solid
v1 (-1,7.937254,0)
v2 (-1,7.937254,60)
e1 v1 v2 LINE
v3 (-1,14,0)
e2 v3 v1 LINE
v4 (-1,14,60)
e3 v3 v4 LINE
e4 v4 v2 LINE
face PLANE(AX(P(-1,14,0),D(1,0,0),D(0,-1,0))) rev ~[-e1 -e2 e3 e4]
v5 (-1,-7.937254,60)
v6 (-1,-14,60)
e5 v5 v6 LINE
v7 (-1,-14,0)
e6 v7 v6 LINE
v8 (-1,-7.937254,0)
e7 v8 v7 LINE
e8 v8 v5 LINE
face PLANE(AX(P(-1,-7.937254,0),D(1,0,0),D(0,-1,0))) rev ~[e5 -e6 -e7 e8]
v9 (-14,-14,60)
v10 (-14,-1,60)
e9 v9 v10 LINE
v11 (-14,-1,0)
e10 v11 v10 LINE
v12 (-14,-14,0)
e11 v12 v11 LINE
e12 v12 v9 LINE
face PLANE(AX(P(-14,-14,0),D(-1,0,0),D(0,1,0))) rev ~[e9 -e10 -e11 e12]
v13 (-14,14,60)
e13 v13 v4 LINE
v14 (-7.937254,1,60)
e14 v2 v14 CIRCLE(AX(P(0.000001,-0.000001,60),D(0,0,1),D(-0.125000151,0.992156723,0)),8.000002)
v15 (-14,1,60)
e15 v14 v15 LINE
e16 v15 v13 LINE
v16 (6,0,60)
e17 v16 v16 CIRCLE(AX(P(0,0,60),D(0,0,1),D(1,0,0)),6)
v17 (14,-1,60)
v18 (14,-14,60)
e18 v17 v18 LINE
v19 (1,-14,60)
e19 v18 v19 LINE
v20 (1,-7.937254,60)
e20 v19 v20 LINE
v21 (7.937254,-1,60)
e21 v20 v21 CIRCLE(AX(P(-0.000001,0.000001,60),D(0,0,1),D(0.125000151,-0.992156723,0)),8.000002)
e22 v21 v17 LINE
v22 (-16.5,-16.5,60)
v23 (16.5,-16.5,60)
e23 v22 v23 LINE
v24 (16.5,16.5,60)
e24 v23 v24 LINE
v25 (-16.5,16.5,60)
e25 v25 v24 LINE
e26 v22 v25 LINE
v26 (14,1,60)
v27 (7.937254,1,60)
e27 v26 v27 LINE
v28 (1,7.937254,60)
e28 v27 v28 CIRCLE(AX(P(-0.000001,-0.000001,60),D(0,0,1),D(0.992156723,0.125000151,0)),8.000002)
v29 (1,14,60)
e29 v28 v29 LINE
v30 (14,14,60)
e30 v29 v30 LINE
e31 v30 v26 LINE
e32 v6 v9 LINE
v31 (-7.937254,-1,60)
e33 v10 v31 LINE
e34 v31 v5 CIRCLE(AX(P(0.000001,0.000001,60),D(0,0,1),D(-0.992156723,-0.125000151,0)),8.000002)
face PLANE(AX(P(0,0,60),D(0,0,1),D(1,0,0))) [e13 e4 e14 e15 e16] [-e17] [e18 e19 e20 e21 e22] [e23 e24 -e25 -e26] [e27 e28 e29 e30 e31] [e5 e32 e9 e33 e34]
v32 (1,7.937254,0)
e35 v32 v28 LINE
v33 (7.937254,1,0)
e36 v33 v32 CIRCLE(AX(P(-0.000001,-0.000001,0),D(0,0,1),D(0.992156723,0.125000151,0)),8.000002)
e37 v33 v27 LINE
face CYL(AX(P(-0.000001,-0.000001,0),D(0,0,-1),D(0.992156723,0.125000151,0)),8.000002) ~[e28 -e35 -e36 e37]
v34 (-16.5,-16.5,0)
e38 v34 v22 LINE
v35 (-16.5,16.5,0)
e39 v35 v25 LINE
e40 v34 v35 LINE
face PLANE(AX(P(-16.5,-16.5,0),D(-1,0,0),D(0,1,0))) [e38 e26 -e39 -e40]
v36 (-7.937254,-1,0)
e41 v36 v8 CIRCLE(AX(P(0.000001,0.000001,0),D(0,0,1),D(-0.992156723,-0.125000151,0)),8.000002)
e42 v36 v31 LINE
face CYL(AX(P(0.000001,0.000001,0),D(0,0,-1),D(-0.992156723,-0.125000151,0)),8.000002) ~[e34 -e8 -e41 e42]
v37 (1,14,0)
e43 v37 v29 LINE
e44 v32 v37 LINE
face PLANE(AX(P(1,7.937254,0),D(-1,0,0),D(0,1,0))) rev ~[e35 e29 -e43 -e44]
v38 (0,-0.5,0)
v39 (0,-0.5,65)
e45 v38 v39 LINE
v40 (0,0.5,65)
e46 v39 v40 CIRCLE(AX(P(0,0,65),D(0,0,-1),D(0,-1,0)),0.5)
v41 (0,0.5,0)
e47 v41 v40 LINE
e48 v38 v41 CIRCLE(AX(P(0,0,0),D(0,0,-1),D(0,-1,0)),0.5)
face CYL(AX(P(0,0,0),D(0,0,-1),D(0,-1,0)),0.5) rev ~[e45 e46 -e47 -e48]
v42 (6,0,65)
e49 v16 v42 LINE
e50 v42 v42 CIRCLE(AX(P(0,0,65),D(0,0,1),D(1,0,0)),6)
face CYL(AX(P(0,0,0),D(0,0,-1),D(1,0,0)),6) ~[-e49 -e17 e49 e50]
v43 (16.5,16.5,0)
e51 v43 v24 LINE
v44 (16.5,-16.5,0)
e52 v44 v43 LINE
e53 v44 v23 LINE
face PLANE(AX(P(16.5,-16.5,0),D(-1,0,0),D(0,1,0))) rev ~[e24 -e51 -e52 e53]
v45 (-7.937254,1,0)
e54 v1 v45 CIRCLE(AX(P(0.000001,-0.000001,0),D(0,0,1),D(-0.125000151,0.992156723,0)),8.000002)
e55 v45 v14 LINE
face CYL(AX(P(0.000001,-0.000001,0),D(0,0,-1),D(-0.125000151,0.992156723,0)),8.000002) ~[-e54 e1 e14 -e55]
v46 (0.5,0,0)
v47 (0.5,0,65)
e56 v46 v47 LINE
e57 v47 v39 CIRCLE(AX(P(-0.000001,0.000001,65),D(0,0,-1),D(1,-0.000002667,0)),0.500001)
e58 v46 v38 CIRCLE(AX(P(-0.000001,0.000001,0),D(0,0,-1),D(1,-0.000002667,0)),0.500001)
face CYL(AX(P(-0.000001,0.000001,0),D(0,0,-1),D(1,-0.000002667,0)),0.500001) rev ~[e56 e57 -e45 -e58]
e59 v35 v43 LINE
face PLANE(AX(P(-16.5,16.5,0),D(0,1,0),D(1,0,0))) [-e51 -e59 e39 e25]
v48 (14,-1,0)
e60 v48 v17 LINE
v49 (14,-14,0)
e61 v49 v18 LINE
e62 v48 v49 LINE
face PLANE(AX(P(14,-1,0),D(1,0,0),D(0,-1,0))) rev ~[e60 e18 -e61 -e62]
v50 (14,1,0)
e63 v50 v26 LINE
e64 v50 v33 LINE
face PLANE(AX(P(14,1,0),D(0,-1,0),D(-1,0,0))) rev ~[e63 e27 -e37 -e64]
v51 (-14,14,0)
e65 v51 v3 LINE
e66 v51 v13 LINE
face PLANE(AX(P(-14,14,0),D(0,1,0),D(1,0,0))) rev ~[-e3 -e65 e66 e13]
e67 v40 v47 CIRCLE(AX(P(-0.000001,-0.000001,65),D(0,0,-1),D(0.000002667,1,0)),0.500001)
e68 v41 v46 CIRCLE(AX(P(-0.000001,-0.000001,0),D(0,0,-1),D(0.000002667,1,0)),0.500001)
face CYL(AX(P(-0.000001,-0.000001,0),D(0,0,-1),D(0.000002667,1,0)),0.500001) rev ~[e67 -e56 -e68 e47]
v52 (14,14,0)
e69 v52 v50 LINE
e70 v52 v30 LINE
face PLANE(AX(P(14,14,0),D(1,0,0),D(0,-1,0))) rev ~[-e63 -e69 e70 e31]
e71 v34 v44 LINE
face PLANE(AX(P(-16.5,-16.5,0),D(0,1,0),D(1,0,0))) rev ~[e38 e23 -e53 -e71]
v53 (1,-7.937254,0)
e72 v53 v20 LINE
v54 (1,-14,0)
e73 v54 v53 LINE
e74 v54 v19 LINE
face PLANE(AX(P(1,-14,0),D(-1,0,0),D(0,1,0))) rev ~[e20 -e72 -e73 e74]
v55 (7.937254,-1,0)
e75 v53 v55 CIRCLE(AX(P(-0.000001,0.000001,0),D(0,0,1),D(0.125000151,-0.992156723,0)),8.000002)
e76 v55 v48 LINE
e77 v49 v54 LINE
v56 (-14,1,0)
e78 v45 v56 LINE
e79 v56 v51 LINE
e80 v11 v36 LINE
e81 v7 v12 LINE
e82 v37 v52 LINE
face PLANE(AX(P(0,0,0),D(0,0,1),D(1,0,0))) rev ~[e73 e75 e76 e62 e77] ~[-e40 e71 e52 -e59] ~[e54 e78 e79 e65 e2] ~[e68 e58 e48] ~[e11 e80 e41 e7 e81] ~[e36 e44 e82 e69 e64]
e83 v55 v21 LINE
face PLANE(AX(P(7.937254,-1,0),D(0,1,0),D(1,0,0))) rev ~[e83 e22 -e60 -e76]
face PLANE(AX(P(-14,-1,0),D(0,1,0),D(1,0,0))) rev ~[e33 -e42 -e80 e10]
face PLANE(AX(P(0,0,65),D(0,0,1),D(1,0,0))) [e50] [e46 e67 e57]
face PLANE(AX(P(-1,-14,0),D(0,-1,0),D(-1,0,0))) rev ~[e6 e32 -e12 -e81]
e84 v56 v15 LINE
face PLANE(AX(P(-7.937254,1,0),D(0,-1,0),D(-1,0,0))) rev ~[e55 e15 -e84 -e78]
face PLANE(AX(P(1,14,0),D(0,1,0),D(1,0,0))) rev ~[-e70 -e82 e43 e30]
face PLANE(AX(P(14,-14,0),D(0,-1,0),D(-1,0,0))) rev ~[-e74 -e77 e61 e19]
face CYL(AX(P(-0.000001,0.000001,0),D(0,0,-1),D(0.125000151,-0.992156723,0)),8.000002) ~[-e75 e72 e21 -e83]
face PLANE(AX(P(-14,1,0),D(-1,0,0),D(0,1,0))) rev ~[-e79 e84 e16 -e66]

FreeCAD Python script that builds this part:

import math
import FreeCAD as App
import Part
import Sketcher
from FreeCAD import Vector
Q = App.Units.Quantity


def add_polygon(sketch, points):
    """Adds a closed chain of lines whose ends are joined by coincident constraints."""
    first, n = sketch.GeometryCount, len(points)
    for a, b in zip(points, points[1:] + points[:1]):
        sketch.addGeometry(Part.LineSegment(App.Vector(*a, 0), App.Vector(*b, 0)), False)
    for i in range(n):
        sketch.addConstraint(Sketcher.Constraint("Coincident", first + i, 2, first + (i + 1) % n, 1))

doc = App.newDocument("Part")
body = doc.addObject("PartDesign::Body", "Body")

sketch1 = body.newObject("Sketcher::SketchObject", "Sketch")
sketch1.AttachmentSupport = (doc.getObject("XY_Plane"), [""])
sketch1.MapMode = "FlatFace"
add_polygon(sketch1, [(-16, 16), (-16, -16), (16, -16), (16, 16)])
sketch1.addGeometry(Part.LineSegment(Vector(-14, 14, 0), Vector(-1, 14, 0)), False)
sketch1.addGeometry(Part.LineSegment(Vector(-1, 14, 0), Vector(-1, 8, 0)), False)
sketch1.addGeometry(Part.ArcOfCircle(Part.Circle(Vector(0, 0, 0), Vector(0, 0, 1), 8), math.radians(97), math.radians(173)), False)
sketch1.addGeometry(Part.LineSegment(Vector(-8, 1, 0), Vector(-14, 1, 0)), False)
sketch1.addGeometry(Part.LineSegment(Vector(-14, 1, 0), Vector(-14, 14, 0)), False)
sketch1.addGeometry(Part.LineSegment(Vector(1, 14, 0), Vector(14, 14, 0)), False)
sketch1.addGeometry(Part.LineSegment(Vector(14, 14, 0), Vector(14, 1, 0)), False)
sketch1.addGeometry(Part.LineSegment(Vector(14, 1, 0), Vector(8, 1, 0)), False)
sketch1.addGeometry(Part.ArcOfCircle(Part.Circle(Vector(0, 0, 0), Vector(0, 0, 1), 8), math.radians(7), math.radians(83)), False)
sketch1.addGeometry(Part.LineSegment(Vector(1, 8, 0), Vector(1, 14, 0)), False)
sketch1.addGeometry(Part.LineSegment(Vector(-14, -14, 0), Vector(-14, -1, 0)), False)
sketch1.addGeometry(Part.LineSegment(Vector(-14, -1, 0), Vector(-8, -1, 0)), False)
sketch1.addGeometry(Part.ArcOfCircle(Part.Circle(Vector(0, 0, 0), Vector(0, 0, 1), 8), math.radians(-173), math.radians(-97)), False)
sketch1.addGeometry(Part.LineSegment(Vector(-1, -8, 0), Vector(-1, -14, 0)), False)
sketch1.addGeometry(Part.LineSegment(Vector(-1, -14, 0), Vector(-14, -14, 0)), False)
sketch1.addGeometry(Part.ArcOfCircle(Part.Circle(Vector(0, 0, 0), Vector(0, 0, 1), 8), math.radians(-83), math.radians(-7)), False)
sketch1.addGeometry(Part.LineSegment(Vector(8, -1, 0), Vector(14, -1, 0)), False)
sketch1.addGeometry(Part.LineSegment(Vector(14, -1, 0), Vector(14, -14, 0)), False)
sketch1.addGeometry(Part.LineSegment(Vector(14, -14, 0), Vector(1, -14, 0)), False)
sketch1.addGeometry(Part.LineSegment(Vector(1, -14, 0), Vector(1, -8, 0)), False)
sketch1.addGeometry(Part.Circle(Vector(0, 0, 0), Vector(0, 0, 1), 6), False)
sketch1.addConstraint([
    Sketcher.Constraint("Coincident", 4, 2, 5, 1),
    Sketcher.Constraint("Coincident", 5, 2, 6, 1),
    Sketcher.Constraint("Coincident", 6, 2, 7, 1),
    Sketcher.Constraint("Coincident", 7, 2, 8, 1),
    Sketcher.Constraint("Coincident", 8, 2, 4, 1),
    Sketcher.Constraint("Coincident", 9, 2, 10, 1),
    Sketcher.Constraint("Coincident", 10, 2, 11, 1),
    Sketcher.Constraint("Coincident", 11, 2, 12, 1),
    Sketcher.Constraint("Coincident", 12, 2, 13, 1),
    Sketcher.Constraint("Coincident", 13, 2, 9, 1),
    Sketcher.Constraint("Coincident", 14, 2, 15, 1),
    Sketcher.Constraint("Coincident", 15, 2, 16, 1),
    Sketcher.Constraint("Coincident", 16, 2, 17, 1),
    Sketcher.Constraint("Coincident", 17, 2, 18, 1),
    Sketcher.Constraint("Coincident", 18, 2, 14, 1),
    Sketcher.Constraint("Coincident", 19, 2, 20, 1),
    Sketcher.Constraint("Coincident", 20, 2, 21, 1),
    Sketcher.Constraint("Coincident", 21, 2, 22, 1),
    Sketcher.Constraint("Coincident", 22, 2, 23, 1),
    Sketcher.Constraint("Coincident", 23, 2, 19, 1),
    Sketcher.Constraint("Vertical", 0),
    Sketcher.Constraint("Horizontal", 1),
    Sketcher.Constraint("Vertical", 2),
    Sketcher.Constraint("Horizontal", 3),
    Sketcher.Constraint("Horizontal", 4),
    Sketcher.Constraint("Vertical", 5),
    Sketcher.Constraint("Horizontal", 7),
    Sketcher.Constraint("Vertical", 8),
    Sketcher.Constraint("Horizontal", 9),
    Sketcher.Constraint("Vertical", 10),
    Sketcher.Constraint("Horizontal", 11),
    Sketcher.Constraint("Vertical", 13),
    Sketcher.Constraint("Vertical", 14),
    Sketcher.Constraint("Horizontal", 15),
    Sketcher.Constraint("Vertical", 17),
    Sketcher.Constraint("Horizontal", 18),
    Sketcher.Constraint("Horizontal", 20),
    Sketcher.Constraint("Vertical", 21),
    Sketcher.Constraint("Horizontal", 22),
    Sketcher.Constraint("Vertical", 23),
    Sketcher.Constraint("Coincident", 6, 3, -1, 1),
    Sketcher.Constraint("Coincident", 12, 3, -1, 1),
    Sketcher.Constraint("Coincident", 16, 3, -1, 1),
    Sketcher.Constraint("Coincident", 19, 3, -1, 1),
    Sketcher.Constraint("Coincident", 24, 3, -1, 1),
    Sketcher.Constraint("Equal", 6, 12),
    Sketcher.Constraint("Equal", 12, 16),
    Sketcher.Constraint("Equal", 16, 19),
    Sketcher.Constraint("Symmetric", 0, 2, 2, 2, -1, 1),
    Sketcher.Constraint("Symmetric", 10, 2, 14, 2, -1, 1),
    Sketcher.Constraint("Symmetric", 13, 2, 17, 2, -1, 1),
    Sketcher.Constraint("Symmetric", 7, 2, 20, 2, -1, 1),
    Sketcher.Constraint("Symmetric", 4, 2, 22, 2, -1, 1),
    Sketcher.Constraint("Symmetric", 8, 2, 9, 2, -2),
    Sketcher.Constraint("Horizontal", 7, 2, 10, 2),
    Sketcher.Constraint("Horizontal", 5, 2, 12, 2),
    Sketcher.Constraint("Equal", 3, 0),
    Sketcher.Constraint("Equal", 20, 5),
    Sketcher.Constraint("Equal", 22, 8),
    Sketcher.Constraint("Diameter", 24, Q("12 mm")),
    Sketcher.Constraint("Radius", 6, Q("8.000002 mm")),
    Sketcher.Constraint("DistanceX", 1, 1, 1, 2, Q("33 mm")),
    Sketcher.Constraint("DistanceX", 4, 1, 4, 2, Q("13 mm")),
    Sketcher.Constraint("DistanceX", 4, 2, -1, 1, Q("1 mm")),
])
pad1 = body.newObject("PartDesign::Pad", "Pad")
pad1.Profile = sketch1
pad1.Length = 60

sketch2 = body.newObject("Sketcher::SketchObject", "Sketch001")
sketch2.AttachmentSupport = (doc.getObject("XY_Plane"), [""])
sketch2.MapMode = "FlatFace"
sketch2.addGeometry([
    Part.Circle(Vector(0, 0, 0), Vector(0, 0, 1), 6),
    Part.ArcOfCircle(Part.Circle(Vector(0, 0, 0), Vector(0, 0, 1), 0.5), math.radians(-90), math.radians(0)),
    Part.ArcOfCircle(Part.Circle(Vector(0, 0, 0), Vector(0, 0, 1), 0.5), math.radians(90), math.radians(270)),
    Part.ArcOfCircle(Part.Circle(Vector(0, 0, 0), Vector(0, 0, 1), 0.5), math.radians(0), math.radians(90)),
], False)
sketch2.addConstraint([
    Sketcher.Constraint("Coincident", 1, 1, 2, 2),
    Sketcher.Constraint("Coincident", 2, 1, 3, 2),
    Sketcher.Constraint("Coincident", 3, 1, 1, 2),
    Sketcher.Constraint("Coincident", 0, 3, -1, 1),
    Sketcher.Constraint("Coincident", 1, 3, -1, 1),
    Sketcher.Constraint("Coincident", 2, 3, -1, 1),
    Sketcher.Constraint("Equal", 2, 3),
    Sketcher.Constraint("PointOnObject", 1, 1, -2),
    Sketcher.Constraint("PointOnObject", 2, 1, -2),
    Sketcher.Constraint("PointOnObject", 3, 1, -1),
    Sketcher.Constraint("Diameter", 0, Q("12 mm")),
    Sketcher.Constraint("Radius", 1, Q("0.500001 mm")),
])
pad2 = body.newObject("PartDesign::Pad", "Pad001")
pad2.Profile = sketch2
pad2.Length = 65

doc.recompute()
